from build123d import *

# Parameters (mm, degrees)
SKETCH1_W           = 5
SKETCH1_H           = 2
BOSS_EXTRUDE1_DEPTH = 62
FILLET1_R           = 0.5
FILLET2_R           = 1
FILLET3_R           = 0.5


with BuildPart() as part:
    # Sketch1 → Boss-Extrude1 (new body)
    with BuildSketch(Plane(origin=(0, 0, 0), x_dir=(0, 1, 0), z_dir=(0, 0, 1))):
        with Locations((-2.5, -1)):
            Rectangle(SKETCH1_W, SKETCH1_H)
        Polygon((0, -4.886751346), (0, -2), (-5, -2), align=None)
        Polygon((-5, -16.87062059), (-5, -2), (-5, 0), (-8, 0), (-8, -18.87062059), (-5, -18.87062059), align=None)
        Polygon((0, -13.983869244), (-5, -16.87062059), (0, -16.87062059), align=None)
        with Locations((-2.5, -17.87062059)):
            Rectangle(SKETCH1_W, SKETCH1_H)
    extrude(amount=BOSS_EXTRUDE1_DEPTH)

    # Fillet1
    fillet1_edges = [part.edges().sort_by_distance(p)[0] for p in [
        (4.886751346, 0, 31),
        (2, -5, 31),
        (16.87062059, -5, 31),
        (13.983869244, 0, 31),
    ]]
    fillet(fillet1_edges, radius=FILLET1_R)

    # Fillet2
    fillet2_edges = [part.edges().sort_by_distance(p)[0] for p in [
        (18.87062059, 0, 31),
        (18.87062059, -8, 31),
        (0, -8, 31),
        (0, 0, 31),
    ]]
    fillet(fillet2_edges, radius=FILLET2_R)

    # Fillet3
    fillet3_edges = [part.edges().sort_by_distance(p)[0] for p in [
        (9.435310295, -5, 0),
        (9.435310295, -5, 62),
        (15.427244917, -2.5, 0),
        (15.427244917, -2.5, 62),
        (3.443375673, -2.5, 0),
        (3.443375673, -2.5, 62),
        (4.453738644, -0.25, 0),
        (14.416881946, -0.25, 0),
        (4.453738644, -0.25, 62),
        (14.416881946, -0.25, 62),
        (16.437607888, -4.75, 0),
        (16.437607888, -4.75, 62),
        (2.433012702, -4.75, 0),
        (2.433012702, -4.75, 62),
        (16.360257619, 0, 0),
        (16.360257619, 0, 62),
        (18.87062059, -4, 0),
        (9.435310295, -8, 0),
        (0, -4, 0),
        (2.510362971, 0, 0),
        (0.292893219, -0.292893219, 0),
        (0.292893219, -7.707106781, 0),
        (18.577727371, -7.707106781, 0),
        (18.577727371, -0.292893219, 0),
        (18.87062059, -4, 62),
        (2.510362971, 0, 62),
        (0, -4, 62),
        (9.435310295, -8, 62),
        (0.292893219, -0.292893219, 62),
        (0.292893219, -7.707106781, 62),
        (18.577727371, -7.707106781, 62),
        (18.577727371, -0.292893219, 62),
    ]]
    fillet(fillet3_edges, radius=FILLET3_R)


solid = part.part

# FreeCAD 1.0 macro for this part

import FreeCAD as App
import Part
import Sketcher
from FreeCAD import Vector
Q = App.Units.Quantity


def edges_at(feature, points):
    """Names of the edges that pass closest to the given points."""
    edges = feature.Shape.Edges
    near = lambda p: min(range(len(edges)), key=lambda i: edges[i].distToShape(Part.Vertex(*p))[0])
    return sorted({f"Edge{near(p) + 1}" for p in points})


def add_polygon(sketch, points):
    """Adds a closed chain of lines whose ends are joined by coincident constraints."""
    first, n = sketch.GeometryCount, len(points)
    for a, b in zip(points, points[1:] + points[:1]):
        sketch.addGeometry(Part.LineSegment(App.Vector(*a, 0), App.Vector(*b, 0)), False)
    for i in range(n):
        sketch.addConstraint(Sketcher.Constraint("Coincident", first + i, 2, first + (i + 1) % n, 1))

doc = App.newDocument("Part")
body = doc.addObject("PartDesign::Body", "Body")

sketch1 = doc.addObject("Sketcher::SketchObject", "Sketch")
body.addObject(sketch1)
sketch1.AttachmentSupport = (doc.XY_Plane, [""])
sketch1.MapMode = "FlatFace"
add_polygon(sketch1, [(2, -5), (4.9, 0), (0, 0), (0, -8), (18.9, -8), (18.9, 0), (14, 0), (16.9, -5)])
sketch1.addConstraint([
    Sketcher.Constraint("Horizontal", 1),
    Sketcher.Constraint("Vertical", 2),
    Sketcher.Constraint("Horizontal", 3),
    Sketcher.Constraint("Vertical", 4),
    Sketcher.Constraint("Horizontal", 5),
    Sketcher.Constraint("Horizontal", 7),
    Sketcher.Constraint("Coincident", 1, 2, -1, 1),
    Sketcher.Constraint("PointOnObject", 4, 2, -1),
    Sketcher.Constraint("Equal", 1, 5),
    Sketcher.Constraint("Equal", 0, 6),
    Sketcher.Constraint("DistanceY", 2, 2, 2, 1, 8.0),
    Sketcher.Constraint("Angle", 0, Q("60 deg")),
    Sketcher.Constraint("DistanceY", 6, 2, -1, 1, 5.0),
    Sketcher.Constraint("DistanceX", -1, 1, 7, 2, 2.0),
    Sketcher.Constraint("DistanceX", 3, 1, 3, 2, 18.870621),
])
pad1 = doc.addObject("PartDesign::Pad", "Pad")
body.addObject(pad1)
pad1.Profile = sketch1
pad1.Length = 62
doc.recompute()

fillet = doc.addObject("PartDesign::Fillet", "Fillet")
body.addObject(fillet)
fillet.Base = (pad1, edges_at(pad1, [
    (4.887, 0, 31),
    (2, -5, 31),
    (16.871, -5, 31),
    (13.984, 0, 31),
]))
fillet.Radius = 0.5
doc.recompute()

fillet2 = doc.addObject("PartDesign::Fillet", "Fillet001")
body.addObject(fillet2)
fillet2.Base = (fillet, edges_at(fillet, [
    (18.871, 0, 31),
    (18.871, -8, 31),
    (0, -8, 31),
    (0, 0, 31),
]))
fillet2.Radius = 1
doc.recompute()

fillet3 = doc.addObject("PartDesign::Fillet", "Fillet002")
body.addObject(fillet3)
fillet3.Base = (fillet2, edges_at(fillet2, [
    (9.435, -5, 0),
    (9.435, -5, 62),
    (15.427, -2.5, 0),
    (15.427, -2.5, 62),
    (3.443, -2.5, 0),
    (3.443, -2.5, 62),
    (4.454, -0.25, 0),
    (14.417, -0.25, 0),
    (4.454, -0.25, 62),
    (14.417, -0.25, 62),
    (16.438, -4.75, 0),
    (16.438, -4.75, 62),
    (2.433, -4.75, 0),
    (2.433, -4.75, 62),
    (16.36, 0, 0),
    (16.36, 0, 62),
    (18.871, -4, 0),
    (9.435, -8, 0),
    (0, -4, 0),
    (2.51, 0, 0),
    (0.293, -0.293, 0),
    (0.293, -7.707, 0),
    (18.578, -7.707, 0),
    (18.578, -0.293, 0),
    (18.871, -4, 62),
    (2.51, 0, 62),
    (0, -4, 62),
    (9.435, -8, 62),
    (0.293, -0.293, 62),
    (0.293, -7.707, 62),
    (18.578, -7.707, 62),
    (18.578, -0.293, 62),
]))
fillet3.Radius = 0.5

doc.recompute()
